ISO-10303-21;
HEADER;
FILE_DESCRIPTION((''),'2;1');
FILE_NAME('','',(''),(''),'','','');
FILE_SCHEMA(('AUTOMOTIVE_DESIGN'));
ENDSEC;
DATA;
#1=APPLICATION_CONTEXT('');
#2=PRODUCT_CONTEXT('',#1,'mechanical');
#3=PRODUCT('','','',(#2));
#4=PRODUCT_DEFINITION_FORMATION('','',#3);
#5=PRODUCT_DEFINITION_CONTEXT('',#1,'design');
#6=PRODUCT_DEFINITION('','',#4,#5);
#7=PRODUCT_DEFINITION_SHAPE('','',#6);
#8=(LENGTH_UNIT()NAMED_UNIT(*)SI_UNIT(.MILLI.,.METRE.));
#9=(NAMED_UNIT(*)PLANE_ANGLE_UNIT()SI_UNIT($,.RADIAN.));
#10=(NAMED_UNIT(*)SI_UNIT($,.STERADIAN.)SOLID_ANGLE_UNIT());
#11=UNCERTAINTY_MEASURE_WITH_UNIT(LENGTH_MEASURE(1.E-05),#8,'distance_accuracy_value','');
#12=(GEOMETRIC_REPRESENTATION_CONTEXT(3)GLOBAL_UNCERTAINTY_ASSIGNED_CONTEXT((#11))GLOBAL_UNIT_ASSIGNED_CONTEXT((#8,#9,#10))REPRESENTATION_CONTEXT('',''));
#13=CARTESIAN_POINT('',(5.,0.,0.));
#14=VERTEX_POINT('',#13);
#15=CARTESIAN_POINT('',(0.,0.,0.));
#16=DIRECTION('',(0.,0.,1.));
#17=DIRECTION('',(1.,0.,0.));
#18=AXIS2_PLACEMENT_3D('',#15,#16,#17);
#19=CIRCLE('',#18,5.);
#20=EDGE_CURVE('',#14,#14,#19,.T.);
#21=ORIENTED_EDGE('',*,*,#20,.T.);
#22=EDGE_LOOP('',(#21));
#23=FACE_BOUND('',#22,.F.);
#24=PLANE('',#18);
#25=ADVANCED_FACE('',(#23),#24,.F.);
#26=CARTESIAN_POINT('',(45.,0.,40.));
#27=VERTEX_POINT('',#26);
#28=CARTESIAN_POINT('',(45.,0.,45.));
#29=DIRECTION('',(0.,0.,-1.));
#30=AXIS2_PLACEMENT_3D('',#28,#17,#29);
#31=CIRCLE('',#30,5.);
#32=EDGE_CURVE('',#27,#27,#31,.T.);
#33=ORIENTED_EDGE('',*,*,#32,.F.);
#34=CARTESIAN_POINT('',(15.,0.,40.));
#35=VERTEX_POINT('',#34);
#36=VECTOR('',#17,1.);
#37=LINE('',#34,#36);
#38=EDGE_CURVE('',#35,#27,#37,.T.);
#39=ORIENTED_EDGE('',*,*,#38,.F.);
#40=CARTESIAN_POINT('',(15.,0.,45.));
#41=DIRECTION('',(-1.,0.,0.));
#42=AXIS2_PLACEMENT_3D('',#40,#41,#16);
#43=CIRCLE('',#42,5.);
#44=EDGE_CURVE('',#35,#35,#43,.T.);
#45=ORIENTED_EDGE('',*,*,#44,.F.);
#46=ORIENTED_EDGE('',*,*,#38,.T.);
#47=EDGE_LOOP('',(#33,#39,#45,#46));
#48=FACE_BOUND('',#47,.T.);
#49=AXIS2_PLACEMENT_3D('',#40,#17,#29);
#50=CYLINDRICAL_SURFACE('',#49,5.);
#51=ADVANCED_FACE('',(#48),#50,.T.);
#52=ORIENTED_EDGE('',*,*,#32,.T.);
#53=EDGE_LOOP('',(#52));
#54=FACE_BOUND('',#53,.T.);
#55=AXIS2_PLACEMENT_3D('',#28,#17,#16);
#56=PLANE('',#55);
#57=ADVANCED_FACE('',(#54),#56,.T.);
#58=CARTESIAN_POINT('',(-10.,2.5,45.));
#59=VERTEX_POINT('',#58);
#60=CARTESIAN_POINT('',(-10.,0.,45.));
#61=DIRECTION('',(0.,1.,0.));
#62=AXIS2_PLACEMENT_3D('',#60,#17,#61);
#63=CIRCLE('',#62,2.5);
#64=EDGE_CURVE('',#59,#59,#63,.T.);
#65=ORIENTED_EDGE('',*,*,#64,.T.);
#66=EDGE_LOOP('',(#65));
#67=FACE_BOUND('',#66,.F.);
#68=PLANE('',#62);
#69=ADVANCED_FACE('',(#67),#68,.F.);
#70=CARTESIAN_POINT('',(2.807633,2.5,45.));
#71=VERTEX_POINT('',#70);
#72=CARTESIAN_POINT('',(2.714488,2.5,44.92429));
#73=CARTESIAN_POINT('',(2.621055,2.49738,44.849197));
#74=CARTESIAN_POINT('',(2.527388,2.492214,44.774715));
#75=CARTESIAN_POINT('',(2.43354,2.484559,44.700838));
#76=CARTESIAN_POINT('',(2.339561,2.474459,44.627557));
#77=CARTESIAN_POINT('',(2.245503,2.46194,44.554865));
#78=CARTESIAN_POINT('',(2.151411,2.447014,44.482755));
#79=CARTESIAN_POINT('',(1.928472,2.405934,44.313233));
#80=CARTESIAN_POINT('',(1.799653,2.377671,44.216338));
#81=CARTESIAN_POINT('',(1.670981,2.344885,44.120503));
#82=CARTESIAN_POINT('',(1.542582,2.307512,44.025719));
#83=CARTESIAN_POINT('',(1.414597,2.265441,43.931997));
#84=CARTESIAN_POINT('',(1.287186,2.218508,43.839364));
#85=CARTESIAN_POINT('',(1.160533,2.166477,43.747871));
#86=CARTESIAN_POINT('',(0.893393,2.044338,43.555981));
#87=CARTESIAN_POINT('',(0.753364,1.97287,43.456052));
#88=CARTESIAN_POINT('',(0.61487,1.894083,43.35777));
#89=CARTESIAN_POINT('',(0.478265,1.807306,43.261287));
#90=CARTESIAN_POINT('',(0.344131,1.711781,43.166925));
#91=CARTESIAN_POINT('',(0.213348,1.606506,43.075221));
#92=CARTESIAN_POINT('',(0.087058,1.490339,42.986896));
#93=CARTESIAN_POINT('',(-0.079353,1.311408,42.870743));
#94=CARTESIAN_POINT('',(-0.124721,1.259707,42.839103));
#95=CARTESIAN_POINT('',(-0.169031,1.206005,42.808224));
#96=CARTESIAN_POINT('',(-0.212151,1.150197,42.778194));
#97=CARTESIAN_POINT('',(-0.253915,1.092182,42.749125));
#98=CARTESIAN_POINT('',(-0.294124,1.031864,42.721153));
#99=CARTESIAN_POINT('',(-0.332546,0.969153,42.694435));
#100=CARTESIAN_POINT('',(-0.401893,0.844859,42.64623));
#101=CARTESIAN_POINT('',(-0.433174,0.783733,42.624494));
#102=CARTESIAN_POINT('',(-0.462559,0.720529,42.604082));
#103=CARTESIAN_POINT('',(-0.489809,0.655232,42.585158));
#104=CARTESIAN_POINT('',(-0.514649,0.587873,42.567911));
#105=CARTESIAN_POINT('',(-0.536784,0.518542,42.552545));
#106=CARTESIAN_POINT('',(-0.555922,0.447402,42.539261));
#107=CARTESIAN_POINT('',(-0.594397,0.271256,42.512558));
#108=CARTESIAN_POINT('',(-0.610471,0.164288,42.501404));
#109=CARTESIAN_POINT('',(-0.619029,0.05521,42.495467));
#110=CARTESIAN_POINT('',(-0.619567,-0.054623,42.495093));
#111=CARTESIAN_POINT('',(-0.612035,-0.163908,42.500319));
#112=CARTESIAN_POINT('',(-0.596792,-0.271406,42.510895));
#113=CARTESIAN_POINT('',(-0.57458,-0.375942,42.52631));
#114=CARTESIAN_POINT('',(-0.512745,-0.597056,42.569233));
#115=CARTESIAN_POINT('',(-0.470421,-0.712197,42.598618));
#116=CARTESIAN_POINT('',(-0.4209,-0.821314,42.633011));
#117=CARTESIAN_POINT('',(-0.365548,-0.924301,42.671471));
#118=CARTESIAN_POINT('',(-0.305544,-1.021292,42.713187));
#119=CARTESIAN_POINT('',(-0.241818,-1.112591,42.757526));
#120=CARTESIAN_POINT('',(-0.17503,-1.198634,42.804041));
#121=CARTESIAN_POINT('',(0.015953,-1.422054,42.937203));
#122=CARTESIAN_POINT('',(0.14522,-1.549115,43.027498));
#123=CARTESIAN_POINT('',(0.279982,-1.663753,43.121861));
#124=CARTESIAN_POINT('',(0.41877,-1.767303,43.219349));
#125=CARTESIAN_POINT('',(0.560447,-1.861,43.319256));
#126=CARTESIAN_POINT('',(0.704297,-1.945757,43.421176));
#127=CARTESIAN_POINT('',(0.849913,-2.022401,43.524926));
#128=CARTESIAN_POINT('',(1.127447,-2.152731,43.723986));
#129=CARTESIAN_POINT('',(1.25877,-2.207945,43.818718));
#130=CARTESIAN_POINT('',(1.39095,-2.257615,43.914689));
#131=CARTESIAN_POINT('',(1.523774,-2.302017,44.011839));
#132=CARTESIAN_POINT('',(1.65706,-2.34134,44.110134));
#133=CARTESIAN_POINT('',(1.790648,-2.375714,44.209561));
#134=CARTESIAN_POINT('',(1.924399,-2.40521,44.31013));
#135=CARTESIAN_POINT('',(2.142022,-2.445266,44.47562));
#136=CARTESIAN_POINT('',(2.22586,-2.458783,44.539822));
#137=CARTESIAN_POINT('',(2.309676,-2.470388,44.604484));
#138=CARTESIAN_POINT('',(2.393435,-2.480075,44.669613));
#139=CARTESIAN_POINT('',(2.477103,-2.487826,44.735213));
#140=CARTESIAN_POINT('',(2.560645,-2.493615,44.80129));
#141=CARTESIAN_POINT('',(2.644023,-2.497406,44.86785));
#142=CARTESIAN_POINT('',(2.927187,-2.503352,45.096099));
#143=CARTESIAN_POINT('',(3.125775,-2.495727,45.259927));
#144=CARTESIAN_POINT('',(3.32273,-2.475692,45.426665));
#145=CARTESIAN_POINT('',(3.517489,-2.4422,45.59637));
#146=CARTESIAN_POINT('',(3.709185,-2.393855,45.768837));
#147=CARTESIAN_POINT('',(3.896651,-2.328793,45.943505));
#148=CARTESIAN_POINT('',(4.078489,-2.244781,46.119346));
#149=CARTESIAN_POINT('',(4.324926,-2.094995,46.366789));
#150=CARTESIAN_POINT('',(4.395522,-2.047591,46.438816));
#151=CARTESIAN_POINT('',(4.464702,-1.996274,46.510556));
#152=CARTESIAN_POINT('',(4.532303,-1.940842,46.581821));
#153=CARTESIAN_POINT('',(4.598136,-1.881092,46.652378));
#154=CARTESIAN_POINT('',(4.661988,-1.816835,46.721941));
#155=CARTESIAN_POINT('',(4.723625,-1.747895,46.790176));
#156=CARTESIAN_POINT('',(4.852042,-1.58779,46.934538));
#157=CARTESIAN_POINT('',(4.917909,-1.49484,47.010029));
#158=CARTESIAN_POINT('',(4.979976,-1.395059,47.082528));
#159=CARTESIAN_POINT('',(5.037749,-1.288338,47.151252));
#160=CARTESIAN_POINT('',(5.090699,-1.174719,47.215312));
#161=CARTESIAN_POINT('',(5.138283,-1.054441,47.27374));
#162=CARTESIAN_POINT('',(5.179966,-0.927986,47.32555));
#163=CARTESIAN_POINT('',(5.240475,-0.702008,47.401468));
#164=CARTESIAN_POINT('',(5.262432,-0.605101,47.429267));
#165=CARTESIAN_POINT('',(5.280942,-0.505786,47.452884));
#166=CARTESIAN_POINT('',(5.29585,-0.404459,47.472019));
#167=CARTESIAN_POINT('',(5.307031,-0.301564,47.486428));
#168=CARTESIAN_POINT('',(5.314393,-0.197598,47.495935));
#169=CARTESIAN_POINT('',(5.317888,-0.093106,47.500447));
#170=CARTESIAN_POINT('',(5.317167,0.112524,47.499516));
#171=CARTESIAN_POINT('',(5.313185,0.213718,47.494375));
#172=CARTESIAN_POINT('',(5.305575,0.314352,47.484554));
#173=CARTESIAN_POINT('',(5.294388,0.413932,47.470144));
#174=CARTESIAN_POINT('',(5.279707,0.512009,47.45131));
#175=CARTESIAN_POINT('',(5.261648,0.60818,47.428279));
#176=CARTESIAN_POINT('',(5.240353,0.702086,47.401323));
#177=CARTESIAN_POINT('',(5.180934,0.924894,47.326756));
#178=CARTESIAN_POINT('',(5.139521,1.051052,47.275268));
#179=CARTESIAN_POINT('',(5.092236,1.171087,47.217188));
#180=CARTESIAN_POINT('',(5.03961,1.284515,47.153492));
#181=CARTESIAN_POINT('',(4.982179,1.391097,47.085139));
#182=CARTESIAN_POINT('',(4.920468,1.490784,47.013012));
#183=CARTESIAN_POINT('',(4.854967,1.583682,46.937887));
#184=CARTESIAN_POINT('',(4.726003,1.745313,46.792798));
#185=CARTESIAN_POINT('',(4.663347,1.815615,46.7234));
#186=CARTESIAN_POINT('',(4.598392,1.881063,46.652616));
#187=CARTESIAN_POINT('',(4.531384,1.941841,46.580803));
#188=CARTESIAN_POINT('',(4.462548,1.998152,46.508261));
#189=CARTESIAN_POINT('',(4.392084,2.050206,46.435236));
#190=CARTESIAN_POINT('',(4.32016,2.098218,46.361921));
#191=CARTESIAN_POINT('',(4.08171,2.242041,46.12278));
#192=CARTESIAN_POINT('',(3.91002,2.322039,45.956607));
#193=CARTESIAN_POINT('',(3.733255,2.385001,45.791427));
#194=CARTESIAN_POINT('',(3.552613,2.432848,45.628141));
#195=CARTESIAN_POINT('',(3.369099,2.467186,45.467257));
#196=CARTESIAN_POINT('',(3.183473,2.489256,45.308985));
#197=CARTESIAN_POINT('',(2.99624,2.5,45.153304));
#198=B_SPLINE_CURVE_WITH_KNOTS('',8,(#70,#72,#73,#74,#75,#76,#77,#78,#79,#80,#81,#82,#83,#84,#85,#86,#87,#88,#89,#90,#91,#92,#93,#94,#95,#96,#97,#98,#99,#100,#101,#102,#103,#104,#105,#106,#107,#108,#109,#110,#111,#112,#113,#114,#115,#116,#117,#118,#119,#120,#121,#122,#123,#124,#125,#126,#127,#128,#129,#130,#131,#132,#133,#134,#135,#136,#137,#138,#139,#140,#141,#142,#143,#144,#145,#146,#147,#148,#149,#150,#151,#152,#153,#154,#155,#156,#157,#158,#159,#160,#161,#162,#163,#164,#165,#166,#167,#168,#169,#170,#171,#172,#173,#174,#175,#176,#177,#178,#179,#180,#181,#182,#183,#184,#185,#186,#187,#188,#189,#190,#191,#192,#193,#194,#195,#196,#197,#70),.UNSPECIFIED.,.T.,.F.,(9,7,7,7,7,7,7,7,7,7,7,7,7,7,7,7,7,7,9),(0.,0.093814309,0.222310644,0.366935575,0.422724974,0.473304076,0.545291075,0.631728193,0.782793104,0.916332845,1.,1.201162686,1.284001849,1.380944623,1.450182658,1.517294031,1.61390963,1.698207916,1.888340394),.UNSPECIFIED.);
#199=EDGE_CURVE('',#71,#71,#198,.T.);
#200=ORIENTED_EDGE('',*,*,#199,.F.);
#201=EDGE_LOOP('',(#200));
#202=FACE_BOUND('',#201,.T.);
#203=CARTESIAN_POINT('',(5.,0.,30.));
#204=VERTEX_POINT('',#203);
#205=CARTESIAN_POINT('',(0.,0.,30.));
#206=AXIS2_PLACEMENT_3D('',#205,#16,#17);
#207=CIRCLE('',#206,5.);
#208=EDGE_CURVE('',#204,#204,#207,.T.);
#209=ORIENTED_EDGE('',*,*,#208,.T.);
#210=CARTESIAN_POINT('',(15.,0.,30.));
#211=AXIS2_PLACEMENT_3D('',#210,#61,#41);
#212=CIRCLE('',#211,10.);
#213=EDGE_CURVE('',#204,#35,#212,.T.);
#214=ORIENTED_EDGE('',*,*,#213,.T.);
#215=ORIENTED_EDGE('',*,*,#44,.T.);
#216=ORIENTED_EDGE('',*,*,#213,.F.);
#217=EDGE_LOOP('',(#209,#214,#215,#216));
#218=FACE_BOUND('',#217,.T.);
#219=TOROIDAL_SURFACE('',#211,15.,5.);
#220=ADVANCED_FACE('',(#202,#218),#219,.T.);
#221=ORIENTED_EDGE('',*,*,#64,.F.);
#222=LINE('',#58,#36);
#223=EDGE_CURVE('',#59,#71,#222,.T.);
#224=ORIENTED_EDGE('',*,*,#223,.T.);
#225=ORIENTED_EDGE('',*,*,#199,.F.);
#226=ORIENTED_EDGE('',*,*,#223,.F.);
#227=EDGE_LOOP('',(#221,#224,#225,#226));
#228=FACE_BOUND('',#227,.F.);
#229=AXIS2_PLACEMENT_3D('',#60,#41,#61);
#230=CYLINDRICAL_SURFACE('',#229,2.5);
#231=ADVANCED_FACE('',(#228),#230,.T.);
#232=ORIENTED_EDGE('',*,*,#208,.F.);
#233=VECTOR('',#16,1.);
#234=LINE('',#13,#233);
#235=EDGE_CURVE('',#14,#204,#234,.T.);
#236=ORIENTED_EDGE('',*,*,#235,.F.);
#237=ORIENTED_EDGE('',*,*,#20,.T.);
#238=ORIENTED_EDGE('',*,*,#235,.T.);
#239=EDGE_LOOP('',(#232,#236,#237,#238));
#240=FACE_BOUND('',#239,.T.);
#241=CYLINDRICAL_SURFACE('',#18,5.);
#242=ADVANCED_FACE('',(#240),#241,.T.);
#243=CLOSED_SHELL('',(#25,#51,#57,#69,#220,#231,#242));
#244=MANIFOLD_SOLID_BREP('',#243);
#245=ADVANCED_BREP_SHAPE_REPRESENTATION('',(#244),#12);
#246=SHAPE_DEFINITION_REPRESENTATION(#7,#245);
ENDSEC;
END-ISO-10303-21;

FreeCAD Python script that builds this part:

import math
import FreeCAD as App
import Part
import Sketcher

V = App.Vector
Q = App.Units.Quantity

doc = App.newDocument("Part")
body = doc.addObject("PartDesign::Body", "Body")

# Sketch on XY plane
sketch1 = body.newObject("Sketcher::SketchObject", "Sketch")
sketch1.AttachmentSupport = (doc.getObject("XY_Plane"), [""])
sketch1.MapMode = "FlatFace"
sketch1.addGeometry(Part.Circle(V(0, 0, 0), V(0, 0, 1), 5), False)
sketch1.addConstraint([
    Sketcher.Constraint("Coincident", 0, 3, -1, 1),
    Sketcher.Constraint("Diameter", 0, Q("10 mm")),
])

# Sketch on XZ plane
sketch2 = body.newObject("Sketcher::SketchObject", "Sketch001")
sketch2.AttachmentSupport = (doc.getObject("XZ_Plane"), [""])
sketch2.MapMode = "FlatFace"
sketch2.addGeometry([
    Part.LineSegment(V(0, 0, 0), V(0, 30, 0)),
    Part.ArcOfCircle(Part.Circle(V(15, 30, 0), V(0, 0, 1), 15), math.radians(90), math.radians(180)),
    Part.LineSegment(V(15, 45, 0), V(45, 45, 0)),
], False)
sketch2.addConstraint([
    Sketcher.Constraint("Tangent", 0, 2, 1, 2),
    Sketcher.Constraint("Tangent", 1, 1, 2, 1),
    Sketcher.Constraint("Vertical", 0),
    Sketcher.Constraint("Horizontal", 2),
    Sketcher.Constraint("Coincident", 0, 1, -1, 1),
    Sketcher.Constraint("Equal", 2, 0),
    Sketcher.Constraint("Radius", 1, Q("15 mm")),
    Sketcher.Constraint("DistanceX", 2, 1, 2, 2, Q("30 mm")),
])
doc.recompute()

additivepipe = body.newObject("PartDesign::AdditivePipe", "AdditivePipe")
additivepipe.Profile = sketch1
additivepipe.Spine = (sketch2, ["Edge1", "Edge2", "Edge3"])

# Sketch on YZ plane
sketch3 = body.newObject("Sketcher::SketchObject", "Sketch002")
sketch3.AttachmentSupport = (doc.getObject("YZ_Plane"), [""])
sketch3.MapMode = "FlatFace"
sketch3.AttachmentOffset = App.Placement(V(0, 0, -10), App.Rotation())
sketch3.addGeometry(Part.Circle(V(0, 45, 0), V(0, 0, 1), 2.5), False)
sketch3.addConstraint([
    Sketcher.Constraint("PointOnObject", 0, 3, -2),
    Sketcher.Constraint("Diameter", 0, Q("5 mm")),
    Sketcher.Constraint("DistanceY", -1, 1, 0, 3, Q("45 mm")),
])
pad1 = body.newObject("PartDesign::Pad", "Pad")
pad1.Profile = sketch3
pad1.Length = 30

doc.recompute()
